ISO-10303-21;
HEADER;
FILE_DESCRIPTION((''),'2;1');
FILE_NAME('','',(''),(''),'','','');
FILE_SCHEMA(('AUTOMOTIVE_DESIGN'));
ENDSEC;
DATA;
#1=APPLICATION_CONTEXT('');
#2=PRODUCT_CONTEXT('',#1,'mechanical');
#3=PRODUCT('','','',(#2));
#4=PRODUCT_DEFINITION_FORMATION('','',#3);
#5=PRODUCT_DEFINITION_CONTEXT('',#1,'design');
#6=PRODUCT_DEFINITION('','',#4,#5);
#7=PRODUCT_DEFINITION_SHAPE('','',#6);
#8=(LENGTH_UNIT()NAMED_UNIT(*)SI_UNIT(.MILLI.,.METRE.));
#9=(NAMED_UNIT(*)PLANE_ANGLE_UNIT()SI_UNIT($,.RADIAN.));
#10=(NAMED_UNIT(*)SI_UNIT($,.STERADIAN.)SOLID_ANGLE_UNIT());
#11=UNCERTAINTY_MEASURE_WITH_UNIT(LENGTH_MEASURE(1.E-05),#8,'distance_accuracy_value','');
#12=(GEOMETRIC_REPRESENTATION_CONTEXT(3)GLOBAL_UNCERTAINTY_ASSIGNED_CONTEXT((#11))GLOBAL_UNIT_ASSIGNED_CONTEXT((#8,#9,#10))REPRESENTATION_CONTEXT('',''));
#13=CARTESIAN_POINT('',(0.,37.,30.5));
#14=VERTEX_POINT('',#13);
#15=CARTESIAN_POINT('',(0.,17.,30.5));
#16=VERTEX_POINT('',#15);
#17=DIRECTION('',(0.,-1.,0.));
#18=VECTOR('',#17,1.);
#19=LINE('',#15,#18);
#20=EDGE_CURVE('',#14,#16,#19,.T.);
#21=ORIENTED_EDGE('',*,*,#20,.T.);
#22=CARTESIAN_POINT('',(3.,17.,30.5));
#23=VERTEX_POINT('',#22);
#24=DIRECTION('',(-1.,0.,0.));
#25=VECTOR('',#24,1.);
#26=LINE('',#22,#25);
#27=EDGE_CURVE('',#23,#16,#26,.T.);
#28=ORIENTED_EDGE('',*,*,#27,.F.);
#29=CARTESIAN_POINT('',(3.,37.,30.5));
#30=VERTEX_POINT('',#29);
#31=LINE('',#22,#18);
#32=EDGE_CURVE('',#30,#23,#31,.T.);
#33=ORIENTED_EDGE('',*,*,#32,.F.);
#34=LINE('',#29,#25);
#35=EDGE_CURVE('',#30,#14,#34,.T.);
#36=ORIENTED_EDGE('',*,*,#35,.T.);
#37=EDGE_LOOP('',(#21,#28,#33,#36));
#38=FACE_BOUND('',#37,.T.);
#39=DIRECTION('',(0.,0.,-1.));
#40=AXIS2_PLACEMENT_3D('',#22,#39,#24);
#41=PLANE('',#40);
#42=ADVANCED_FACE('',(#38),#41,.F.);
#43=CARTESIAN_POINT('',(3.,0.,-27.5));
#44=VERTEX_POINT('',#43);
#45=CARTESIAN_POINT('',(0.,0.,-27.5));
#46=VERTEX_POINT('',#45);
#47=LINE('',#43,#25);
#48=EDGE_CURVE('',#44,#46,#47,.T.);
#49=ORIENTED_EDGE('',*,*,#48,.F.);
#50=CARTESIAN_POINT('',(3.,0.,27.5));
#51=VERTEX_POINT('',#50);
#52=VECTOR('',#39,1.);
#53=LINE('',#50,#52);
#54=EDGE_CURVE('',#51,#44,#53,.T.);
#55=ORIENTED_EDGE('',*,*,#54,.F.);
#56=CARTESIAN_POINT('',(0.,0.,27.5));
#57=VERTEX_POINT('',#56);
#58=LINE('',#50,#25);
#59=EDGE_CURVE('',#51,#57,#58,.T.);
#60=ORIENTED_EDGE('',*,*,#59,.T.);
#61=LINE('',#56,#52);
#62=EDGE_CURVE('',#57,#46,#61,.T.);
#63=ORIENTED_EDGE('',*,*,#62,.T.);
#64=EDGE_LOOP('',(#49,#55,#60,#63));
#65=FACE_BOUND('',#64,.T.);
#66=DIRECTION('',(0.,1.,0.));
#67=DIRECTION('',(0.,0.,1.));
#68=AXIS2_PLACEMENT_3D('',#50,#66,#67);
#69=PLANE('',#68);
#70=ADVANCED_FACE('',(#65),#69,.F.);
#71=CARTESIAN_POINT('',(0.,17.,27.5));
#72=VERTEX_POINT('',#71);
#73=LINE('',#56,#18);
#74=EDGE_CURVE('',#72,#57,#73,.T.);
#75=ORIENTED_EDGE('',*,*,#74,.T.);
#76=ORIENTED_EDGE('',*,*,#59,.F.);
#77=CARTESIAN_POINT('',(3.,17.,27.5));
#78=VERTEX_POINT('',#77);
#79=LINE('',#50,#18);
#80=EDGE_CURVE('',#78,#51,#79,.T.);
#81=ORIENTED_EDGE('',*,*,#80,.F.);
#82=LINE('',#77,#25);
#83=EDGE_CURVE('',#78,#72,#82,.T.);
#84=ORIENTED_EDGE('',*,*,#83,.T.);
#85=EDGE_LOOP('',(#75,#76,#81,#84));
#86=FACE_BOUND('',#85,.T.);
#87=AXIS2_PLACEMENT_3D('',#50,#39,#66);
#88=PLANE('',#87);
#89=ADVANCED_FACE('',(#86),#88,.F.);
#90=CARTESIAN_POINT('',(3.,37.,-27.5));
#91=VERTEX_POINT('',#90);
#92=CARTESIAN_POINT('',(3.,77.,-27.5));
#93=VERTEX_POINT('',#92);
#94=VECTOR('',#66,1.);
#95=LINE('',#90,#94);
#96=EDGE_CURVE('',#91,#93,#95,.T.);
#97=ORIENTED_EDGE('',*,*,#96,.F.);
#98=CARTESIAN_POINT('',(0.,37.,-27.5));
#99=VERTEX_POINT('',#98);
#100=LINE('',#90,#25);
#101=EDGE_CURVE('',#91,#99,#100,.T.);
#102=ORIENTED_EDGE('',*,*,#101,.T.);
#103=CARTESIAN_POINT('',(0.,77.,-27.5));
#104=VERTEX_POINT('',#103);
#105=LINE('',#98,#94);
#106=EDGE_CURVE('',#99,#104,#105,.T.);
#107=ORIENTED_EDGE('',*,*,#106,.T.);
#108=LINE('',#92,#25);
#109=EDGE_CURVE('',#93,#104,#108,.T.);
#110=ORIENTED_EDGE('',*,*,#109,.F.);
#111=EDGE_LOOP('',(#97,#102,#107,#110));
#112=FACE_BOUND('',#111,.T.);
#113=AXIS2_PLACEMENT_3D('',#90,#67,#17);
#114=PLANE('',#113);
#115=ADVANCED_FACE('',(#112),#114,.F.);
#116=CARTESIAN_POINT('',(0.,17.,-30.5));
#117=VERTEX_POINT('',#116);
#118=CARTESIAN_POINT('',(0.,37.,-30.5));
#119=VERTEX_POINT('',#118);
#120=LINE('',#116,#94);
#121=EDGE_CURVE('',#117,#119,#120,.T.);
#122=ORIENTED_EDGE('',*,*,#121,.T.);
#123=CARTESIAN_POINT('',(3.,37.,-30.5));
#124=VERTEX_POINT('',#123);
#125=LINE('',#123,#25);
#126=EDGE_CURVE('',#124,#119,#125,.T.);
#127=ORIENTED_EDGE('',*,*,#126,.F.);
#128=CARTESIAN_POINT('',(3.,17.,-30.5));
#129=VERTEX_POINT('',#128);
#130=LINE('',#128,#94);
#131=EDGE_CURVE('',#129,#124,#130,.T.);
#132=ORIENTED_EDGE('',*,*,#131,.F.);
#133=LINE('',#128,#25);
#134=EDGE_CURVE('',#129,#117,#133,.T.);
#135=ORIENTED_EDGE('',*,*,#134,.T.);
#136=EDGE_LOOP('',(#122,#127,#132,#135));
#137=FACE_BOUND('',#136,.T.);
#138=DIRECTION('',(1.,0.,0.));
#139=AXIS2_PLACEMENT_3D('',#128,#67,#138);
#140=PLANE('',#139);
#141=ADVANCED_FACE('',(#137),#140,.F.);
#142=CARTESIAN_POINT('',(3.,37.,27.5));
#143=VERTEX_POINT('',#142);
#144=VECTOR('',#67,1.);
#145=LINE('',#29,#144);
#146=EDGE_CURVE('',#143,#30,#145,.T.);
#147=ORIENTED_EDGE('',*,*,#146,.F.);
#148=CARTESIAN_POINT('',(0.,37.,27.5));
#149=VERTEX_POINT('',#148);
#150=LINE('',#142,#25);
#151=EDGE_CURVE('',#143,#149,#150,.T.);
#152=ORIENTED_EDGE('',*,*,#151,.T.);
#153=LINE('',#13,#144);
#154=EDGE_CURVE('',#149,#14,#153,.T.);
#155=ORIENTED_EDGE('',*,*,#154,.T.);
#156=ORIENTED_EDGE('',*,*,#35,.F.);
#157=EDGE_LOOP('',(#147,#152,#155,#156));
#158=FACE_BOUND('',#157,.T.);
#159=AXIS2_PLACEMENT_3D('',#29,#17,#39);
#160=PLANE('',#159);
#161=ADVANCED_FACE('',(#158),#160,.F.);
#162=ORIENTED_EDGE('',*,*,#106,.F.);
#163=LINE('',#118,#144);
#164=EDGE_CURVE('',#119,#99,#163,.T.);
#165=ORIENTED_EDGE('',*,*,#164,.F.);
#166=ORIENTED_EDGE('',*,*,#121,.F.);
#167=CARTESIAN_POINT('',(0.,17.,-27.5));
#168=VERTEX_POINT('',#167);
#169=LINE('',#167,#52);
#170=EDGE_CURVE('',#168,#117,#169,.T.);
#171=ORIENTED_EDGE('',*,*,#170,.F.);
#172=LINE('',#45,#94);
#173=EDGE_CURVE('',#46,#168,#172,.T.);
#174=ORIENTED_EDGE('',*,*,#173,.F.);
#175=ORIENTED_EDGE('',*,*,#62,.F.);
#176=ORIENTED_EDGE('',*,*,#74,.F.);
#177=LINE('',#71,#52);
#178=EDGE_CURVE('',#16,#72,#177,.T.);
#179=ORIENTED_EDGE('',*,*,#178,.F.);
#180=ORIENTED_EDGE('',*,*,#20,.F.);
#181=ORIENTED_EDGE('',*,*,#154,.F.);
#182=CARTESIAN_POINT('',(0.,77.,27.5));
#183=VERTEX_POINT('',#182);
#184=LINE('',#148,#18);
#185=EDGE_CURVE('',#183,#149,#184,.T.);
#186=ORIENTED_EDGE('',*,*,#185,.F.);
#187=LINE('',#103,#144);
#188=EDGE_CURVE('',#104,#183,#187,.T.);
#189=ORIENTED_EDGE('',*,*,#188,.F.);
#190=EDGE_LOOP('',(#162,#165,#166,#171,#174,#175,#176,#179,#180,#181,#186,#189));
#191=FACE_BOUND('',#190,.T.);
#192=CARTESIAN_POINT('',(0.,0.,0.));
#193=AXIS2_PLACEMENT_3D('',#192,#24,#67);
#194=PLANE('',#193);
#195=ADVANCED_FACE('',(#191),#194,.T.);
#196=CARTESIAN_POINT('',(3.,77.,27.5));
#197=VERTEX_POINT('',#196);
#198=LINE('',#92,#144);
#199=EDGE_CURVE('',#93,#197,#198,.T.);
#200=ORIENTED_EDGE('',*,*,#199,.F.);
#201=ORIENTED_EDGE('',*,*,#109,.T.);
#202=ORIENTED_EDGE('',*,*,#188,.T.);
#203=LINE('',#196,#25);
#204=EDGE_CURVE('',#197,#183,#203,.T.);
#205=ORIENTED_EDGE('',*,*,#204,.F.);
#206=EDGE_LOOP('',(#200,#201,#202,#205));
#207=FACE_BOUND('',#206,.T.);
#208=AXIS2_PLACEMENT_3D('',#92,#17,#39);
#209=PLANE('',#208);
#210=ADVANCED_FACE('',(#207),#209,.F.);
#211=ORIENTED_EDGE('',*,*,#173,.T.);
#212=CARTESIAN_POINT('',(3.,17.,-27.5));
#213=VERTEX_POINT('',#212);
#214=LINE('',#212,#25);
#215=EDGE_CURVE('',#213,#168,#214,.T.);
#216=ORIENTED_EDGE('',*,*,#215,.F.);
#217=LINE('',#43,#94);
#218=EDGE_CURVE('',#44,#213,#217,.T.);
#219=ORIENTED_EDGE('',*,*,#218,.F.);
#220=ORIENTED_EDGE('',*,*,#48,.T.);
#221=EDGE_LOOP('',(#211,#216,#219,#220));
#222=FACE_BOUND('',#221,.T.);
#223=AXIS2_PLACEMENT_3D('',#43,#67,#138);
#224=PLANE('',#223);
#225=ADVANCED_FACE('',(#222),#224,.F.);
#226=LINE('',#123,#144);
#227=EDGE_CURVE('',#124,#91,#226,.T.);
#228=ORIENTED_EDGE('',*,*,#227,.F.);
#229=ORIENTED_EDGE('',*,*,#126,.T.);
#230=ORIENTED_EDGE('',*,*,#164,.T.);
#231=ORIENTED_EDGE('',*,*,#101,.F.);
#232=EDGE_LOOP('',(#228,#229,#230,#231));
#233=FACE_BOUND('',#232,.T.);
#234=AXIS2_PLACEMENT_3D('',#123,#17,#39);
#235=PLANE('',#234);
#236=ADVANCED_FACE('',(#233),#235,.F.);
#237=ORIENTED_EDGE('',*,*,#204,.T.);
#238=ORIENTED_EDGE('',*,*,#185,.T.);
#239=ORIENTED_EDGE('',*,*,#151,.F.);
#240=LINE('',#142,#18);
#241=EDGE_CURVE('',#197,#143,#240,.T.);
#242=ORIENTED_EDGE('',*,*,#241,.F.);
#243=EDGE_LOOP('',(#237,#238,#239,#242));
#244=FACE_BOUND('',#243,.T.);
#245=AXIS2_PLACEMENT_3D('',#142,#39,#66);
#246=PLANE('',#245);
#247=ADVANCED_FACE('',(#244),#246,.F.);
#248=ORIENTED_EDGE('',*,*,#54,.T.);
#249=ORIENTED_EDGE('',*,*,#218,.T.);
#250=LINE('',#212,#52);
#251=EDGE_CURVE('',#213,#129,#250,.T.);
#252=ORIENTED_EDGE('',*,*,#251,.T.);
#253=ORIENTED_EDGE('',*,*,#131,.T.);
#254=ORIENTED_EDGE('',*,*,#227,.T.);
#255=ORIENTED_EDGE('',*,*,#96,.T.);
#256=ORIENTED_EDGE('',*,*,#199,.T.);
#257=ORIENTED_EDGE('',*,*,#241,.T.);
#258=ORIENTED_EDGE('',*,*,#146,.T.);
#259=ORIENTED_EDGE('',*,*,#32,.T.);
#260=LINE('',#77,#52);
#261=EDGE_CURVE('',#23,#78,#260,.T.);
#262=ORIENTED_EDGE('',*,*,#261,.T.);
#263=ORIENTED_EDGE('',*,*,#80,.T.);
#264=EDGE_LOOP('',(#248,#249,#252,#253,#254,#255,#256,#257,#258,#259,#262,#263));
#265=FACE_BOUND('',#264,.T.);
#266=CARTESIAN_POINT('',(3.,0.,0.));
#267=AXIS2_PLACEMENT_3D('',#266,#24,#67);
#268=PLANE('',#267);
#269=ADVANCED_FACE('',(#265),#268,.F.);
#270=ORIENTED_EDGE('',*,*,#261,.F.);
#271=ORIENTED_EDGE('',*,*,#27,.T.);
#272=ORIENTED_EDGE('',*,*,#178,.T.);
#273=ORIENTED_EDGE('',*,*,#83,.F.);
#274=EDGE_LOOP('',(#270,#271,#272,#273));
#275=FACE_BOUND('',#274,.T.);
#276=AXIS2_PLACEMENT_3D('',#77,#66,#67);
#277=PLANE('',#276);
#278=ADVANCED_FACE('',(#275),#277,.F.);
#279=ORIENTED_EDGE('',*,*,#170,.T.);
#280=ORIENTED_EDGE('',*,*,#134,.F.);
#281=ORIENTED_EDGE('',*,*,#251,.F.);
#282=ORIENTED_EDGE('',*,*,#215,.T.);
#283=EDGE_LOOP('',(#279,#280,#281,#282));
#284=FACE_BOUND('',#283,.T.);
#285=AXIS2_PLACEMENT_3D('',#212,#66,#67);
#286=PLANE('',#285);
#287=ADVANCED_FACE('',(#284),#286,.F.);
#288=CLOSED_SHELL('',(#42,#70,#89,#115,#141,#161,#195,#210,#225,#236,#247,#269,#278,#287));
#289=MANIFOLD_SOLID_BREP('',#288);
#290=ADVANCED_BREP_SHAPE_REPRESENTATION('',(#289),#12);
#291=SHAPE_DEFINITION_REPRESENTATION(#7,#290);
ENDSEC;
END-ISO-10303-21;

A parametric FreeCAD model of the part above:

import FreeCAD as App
import Part
import Sketcher
from FreeCAD import Vector
Q = App.Units.Quantity

doc = App.newDocument("Part")
params = doc.addObject("Spreadsheet::Sheet", "Params")
for row, (alias, value) in enumerate([
    ("sketch1_width", "17 mm"),
    ("sketch1_width2", "20 mm"),
    ("sketch1_width3", "40 mm"),
    ("sketch1_height", "55 mm"),
    ("sketch1_height2", "3 mm"),
    ("pad1_length", "3 mm"),
], start=1):
    params.set(f"A{row}", alias)
    params.set(f"B{row}", "=" + value)
    params.setAlias(f"B{row}", alias)

body = doc.addObject("PartDesign::Body", "Body")

sketch1 = doc.addObject("Sketcher::SketchObject", "Sketch")
body.addObject(sketch1)
sketch1.AttachmentSupport = (doc.YZ_Plane, [""])
sketch1.MapMode = "FlatFace"
sketch1.addGeometry(Part.LineSegment(Vector(0, 27.5, 0), Vector(0, -27.5, 0)), False)
sketch1.addGeometry(Part.LineSegment(Vector(0, -27.5, 0), Vector(17, -27.5, 0)), False)
sketch1.addGeometry(Part.LineSegment(Vector(17, -27.5, 0), Vector(17, -30.5, 0)), False)
sketch1.addGeometry(Part.LineSegment(Vector(17, -30.5, 0), Vector(37, -30.5, 0)), False)
sketch1.addGeometry(Part.LineSegment(Vector(37, -30.5, 0), Vector(37, -27.5, 0)), False)
sketch1.addGeometry(Part.LineSegment(Vector(37, -27.5, 0), Vector(77, -27.5, 0)), False)
sketch1.addGeometry(Part.LineSegment(Vector(77, -27.5, 0), Vector(77, 27.5, 0)), False)
sketch1.addGeometry(Part.LineSegment(Vector(77, 27.5, 0), Vector(37, 27.5, 0)), False)
sketch1.addGeometry(Part.LineSegment(Vector(37, 27.5, 0), Vector(37, 30.5, 0)), False)
sketch1.addGeometry(Part.LineSegment(Vector(37, 30.5, 0), Vector(17, 30.5, 0)), False)
sketch1.addGeometry(Part.LineSegment(Vector(17, 30.5, 0), Vector(17, 27.5, 0)), False)
sketch1.addGeometry(Part.LineSegment(Vector(17, 27.5, 0), Vector(0, 27.5, 0)), False)
sketch1.addConstraint(Sketcher.Constraint("Coincident", 0, 2, 1, 1))
sketch1.addConstraint(Sketcher.Constraint("Coincident", 1, 2, 2, 1))
sketch1.addConstraint(Sketcher.Constraint("Coincident", 2, 2, 3, 1))
sketch1.addConstraint(Sketcher.Constraint("Coincident", 3, 2, 4, 1))
sketch1.addConstraint(Sketcher.Constraint("Coincident", 4, 2, 5, 1))
sketch1.addConstraint(Sketcher.Constraint("Coincident", 5, 2, 6, 1))
sketch1.addConstraint(Sketcher.Constraint("Coincident", 6, 2, 7, 1))
sketch1.addConstraint(Sketcher.Constraint("Coincident", 7, 2, 8, 1))
sketch1.addConstraint(Sketcher.Constraint("Coincident", 8, 2, 9, 1))
sketch1.addConstraint(Sketcher.Constraint("Coincident", 9, 2, 10, 1))
sketch1.addConstraint(Sketcher.Constraint("Coincident", 10, 2, 11, 1))
sketch1.addConstraint(Sketcher.Constraint("Coincident", 11, 2, 0, 1))
sketch1.addConstraint(Sketcher.Constraint("Vertical", 0))
sketch1.addConstraint(Sketcher.Constraint("Horizontal", 1))
sketch1.addConstraint(Sketcher.Constraint("Vertical", 2))
sketch1.addConstraint(Sketcher.Constraint("Horizontal", 3))
sketch1.addConstraint(Sketcher.Constraint("Vertical", 4))
sketch1.addConstraint(Sketcher.Constraint("Horizontal", 5))
sketch1.addConstraint(Sketcher.Constraint("Vertical", 6))
sketch1.addConstraint(Sketcher.Constraint("Horizontal", 7))
sketch1.addConstraint(Sketcher.Constraint("Vertical", 8))
sketch1.addConstraint(Sketcher.Constraint("Horizontal", 9))
sketch1.addConstraint(Sketcher.Constraint("Vertical", 10))
sketch1.addConstraint(Sketcher.Constraint("Horizontal", 11))
sketch1.addConstraint(Sketcher.Constraint("Symmetric", 0, 2, 11, 2, -1, 1))
sketch1.addConstraint(Sketcher.Constraint("Symmetric", 4, 2, 7, 2, -1))
sketch1.addConstraint(Sketcher.Constraint("Symmetric", 2, 2, 9, 2, -1))
sketch1.addConstraint(Sketcher.Constraint("Horizontal", 1, 2, 4, 2))
sketch1.addConstraint(Sketcher.Constraint("DistanceX", 1, 1, 1, 2, Q("17 mm")))
sketch1.addConstraint(Sketcher.Constraint("DistanceX", 3, 1, 3, 2, Q("20 mm")))
sketch1.addConstraint(Sketcher.Constraint("DistanceX", 5, 1, 5, 2, Q("40 mm")))
sketch1.addConstraint(Sketcher.Constraint("DistanceY", 0, 2, 0, 1, Q("55 mm")))
sketch1.addConstraint(Sketcher.Constraint("DistanceY", 2, 2, 2, 1, Q("3 mm")))
sketch1.setExpression("Constraints[28]", "Params.sketch1_width")
sketch1.setExpression("Constraints[29]", "Params.sketch1_width2")
sketch1.setExpression("Constraints[30]", "Params.sketch1_width3")
sketch1.setExpression("Constraints[31]", "Params.sketch1_height")
sketch1.setExpression("Constraints[32]", "Params.sketch1_height2")
pad1 = doc.addObject("PartDesign::Pad", "Pad")
body.addObject(pad1)
pad1.Profile = sketch1
pad1.setExpression("Length", "Params.pad1_length")

doc.recompute()
